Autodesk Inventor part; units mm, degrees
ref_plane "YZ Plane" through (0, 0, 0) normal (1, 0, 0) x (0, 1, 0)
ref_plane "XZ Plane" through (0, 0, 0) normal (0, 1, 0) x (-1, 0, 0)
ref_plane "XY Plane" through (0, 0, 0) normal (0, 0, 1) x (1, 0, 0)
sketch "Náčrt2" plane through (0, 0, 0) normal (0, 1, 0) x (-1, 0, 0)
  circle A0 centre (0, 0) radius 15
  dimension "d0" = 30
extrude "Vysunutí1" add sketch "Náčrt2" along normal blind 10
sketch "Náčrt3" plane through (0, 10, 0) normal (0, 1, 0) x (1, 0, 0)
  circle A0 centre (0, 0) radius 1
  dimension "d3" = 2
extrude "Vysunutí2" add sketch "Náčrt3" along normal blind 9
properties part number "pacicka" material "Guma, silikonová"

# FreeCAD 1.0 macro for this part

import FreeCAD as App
import Part
import Sketcher
Q = App.Units.Quantity

doc = App.newDocument("Part")
body = doc.addObject("PartDesign::Body", "Body")

# Sketch on XZ plane
sketch1 = doc.addObject("Sketcher::SketchObject", "Sketch")
body.addObject(sketch1)
sketch1.AttachmentSupport = (doc.XZ_Plane, [""])
sketch1.MapMode = "FlatFace"
sketch1.addGeometry(Part.Circle(App.Vector(0, 0, 0), App.Vector(0, 0, 1), 15), False)
sketch1.addConstraint(Sketcher.Constraint("Coincident", 0, 3, -1, 1))
sketch1.addConstraint(Sketcher.Constraint("Diameter", 0, Q("30 mm")))
pad1 = doc.addObject("PartDesign::Pad", "Pad")
body.addObject(pad1)
pad1.Profile = sketch1
pad1.Length = 10
pad1.Reversed = True

# Sketch on XZ plane
sketch2 = doc.addObject("Sketcher::SketchObject", "Sketch001")
body.addObject(sketch2)
sketch2.AttachmentSupport = (doc.XZ_Plane, [""])
sketch2.MapMode = "FlatFace"
sketch2.AttachmentOffset = App.Placement(App.Vector(0, 0, -10), App.Rotation())
sketch2.addGeometry(Part.Circle(App.Vector(0, 0, 0), App.Vector(0, 0, 1), 1), False)
sketch2.addConstraint(Sketcher.Constraint("Coincident", 0, 3, -1, 1))
sketch2.addConstraint(Sketcher.Constraint("Diameter", 0, Q("2 mm")))
pad2 = doc.addObject("PartDesign::Pad", "Pad001")
body.addObject(pad2)
pad2.Profile = sketch2
pad2.Length = 9
pad2.Reversed = True

doc.recompute()
